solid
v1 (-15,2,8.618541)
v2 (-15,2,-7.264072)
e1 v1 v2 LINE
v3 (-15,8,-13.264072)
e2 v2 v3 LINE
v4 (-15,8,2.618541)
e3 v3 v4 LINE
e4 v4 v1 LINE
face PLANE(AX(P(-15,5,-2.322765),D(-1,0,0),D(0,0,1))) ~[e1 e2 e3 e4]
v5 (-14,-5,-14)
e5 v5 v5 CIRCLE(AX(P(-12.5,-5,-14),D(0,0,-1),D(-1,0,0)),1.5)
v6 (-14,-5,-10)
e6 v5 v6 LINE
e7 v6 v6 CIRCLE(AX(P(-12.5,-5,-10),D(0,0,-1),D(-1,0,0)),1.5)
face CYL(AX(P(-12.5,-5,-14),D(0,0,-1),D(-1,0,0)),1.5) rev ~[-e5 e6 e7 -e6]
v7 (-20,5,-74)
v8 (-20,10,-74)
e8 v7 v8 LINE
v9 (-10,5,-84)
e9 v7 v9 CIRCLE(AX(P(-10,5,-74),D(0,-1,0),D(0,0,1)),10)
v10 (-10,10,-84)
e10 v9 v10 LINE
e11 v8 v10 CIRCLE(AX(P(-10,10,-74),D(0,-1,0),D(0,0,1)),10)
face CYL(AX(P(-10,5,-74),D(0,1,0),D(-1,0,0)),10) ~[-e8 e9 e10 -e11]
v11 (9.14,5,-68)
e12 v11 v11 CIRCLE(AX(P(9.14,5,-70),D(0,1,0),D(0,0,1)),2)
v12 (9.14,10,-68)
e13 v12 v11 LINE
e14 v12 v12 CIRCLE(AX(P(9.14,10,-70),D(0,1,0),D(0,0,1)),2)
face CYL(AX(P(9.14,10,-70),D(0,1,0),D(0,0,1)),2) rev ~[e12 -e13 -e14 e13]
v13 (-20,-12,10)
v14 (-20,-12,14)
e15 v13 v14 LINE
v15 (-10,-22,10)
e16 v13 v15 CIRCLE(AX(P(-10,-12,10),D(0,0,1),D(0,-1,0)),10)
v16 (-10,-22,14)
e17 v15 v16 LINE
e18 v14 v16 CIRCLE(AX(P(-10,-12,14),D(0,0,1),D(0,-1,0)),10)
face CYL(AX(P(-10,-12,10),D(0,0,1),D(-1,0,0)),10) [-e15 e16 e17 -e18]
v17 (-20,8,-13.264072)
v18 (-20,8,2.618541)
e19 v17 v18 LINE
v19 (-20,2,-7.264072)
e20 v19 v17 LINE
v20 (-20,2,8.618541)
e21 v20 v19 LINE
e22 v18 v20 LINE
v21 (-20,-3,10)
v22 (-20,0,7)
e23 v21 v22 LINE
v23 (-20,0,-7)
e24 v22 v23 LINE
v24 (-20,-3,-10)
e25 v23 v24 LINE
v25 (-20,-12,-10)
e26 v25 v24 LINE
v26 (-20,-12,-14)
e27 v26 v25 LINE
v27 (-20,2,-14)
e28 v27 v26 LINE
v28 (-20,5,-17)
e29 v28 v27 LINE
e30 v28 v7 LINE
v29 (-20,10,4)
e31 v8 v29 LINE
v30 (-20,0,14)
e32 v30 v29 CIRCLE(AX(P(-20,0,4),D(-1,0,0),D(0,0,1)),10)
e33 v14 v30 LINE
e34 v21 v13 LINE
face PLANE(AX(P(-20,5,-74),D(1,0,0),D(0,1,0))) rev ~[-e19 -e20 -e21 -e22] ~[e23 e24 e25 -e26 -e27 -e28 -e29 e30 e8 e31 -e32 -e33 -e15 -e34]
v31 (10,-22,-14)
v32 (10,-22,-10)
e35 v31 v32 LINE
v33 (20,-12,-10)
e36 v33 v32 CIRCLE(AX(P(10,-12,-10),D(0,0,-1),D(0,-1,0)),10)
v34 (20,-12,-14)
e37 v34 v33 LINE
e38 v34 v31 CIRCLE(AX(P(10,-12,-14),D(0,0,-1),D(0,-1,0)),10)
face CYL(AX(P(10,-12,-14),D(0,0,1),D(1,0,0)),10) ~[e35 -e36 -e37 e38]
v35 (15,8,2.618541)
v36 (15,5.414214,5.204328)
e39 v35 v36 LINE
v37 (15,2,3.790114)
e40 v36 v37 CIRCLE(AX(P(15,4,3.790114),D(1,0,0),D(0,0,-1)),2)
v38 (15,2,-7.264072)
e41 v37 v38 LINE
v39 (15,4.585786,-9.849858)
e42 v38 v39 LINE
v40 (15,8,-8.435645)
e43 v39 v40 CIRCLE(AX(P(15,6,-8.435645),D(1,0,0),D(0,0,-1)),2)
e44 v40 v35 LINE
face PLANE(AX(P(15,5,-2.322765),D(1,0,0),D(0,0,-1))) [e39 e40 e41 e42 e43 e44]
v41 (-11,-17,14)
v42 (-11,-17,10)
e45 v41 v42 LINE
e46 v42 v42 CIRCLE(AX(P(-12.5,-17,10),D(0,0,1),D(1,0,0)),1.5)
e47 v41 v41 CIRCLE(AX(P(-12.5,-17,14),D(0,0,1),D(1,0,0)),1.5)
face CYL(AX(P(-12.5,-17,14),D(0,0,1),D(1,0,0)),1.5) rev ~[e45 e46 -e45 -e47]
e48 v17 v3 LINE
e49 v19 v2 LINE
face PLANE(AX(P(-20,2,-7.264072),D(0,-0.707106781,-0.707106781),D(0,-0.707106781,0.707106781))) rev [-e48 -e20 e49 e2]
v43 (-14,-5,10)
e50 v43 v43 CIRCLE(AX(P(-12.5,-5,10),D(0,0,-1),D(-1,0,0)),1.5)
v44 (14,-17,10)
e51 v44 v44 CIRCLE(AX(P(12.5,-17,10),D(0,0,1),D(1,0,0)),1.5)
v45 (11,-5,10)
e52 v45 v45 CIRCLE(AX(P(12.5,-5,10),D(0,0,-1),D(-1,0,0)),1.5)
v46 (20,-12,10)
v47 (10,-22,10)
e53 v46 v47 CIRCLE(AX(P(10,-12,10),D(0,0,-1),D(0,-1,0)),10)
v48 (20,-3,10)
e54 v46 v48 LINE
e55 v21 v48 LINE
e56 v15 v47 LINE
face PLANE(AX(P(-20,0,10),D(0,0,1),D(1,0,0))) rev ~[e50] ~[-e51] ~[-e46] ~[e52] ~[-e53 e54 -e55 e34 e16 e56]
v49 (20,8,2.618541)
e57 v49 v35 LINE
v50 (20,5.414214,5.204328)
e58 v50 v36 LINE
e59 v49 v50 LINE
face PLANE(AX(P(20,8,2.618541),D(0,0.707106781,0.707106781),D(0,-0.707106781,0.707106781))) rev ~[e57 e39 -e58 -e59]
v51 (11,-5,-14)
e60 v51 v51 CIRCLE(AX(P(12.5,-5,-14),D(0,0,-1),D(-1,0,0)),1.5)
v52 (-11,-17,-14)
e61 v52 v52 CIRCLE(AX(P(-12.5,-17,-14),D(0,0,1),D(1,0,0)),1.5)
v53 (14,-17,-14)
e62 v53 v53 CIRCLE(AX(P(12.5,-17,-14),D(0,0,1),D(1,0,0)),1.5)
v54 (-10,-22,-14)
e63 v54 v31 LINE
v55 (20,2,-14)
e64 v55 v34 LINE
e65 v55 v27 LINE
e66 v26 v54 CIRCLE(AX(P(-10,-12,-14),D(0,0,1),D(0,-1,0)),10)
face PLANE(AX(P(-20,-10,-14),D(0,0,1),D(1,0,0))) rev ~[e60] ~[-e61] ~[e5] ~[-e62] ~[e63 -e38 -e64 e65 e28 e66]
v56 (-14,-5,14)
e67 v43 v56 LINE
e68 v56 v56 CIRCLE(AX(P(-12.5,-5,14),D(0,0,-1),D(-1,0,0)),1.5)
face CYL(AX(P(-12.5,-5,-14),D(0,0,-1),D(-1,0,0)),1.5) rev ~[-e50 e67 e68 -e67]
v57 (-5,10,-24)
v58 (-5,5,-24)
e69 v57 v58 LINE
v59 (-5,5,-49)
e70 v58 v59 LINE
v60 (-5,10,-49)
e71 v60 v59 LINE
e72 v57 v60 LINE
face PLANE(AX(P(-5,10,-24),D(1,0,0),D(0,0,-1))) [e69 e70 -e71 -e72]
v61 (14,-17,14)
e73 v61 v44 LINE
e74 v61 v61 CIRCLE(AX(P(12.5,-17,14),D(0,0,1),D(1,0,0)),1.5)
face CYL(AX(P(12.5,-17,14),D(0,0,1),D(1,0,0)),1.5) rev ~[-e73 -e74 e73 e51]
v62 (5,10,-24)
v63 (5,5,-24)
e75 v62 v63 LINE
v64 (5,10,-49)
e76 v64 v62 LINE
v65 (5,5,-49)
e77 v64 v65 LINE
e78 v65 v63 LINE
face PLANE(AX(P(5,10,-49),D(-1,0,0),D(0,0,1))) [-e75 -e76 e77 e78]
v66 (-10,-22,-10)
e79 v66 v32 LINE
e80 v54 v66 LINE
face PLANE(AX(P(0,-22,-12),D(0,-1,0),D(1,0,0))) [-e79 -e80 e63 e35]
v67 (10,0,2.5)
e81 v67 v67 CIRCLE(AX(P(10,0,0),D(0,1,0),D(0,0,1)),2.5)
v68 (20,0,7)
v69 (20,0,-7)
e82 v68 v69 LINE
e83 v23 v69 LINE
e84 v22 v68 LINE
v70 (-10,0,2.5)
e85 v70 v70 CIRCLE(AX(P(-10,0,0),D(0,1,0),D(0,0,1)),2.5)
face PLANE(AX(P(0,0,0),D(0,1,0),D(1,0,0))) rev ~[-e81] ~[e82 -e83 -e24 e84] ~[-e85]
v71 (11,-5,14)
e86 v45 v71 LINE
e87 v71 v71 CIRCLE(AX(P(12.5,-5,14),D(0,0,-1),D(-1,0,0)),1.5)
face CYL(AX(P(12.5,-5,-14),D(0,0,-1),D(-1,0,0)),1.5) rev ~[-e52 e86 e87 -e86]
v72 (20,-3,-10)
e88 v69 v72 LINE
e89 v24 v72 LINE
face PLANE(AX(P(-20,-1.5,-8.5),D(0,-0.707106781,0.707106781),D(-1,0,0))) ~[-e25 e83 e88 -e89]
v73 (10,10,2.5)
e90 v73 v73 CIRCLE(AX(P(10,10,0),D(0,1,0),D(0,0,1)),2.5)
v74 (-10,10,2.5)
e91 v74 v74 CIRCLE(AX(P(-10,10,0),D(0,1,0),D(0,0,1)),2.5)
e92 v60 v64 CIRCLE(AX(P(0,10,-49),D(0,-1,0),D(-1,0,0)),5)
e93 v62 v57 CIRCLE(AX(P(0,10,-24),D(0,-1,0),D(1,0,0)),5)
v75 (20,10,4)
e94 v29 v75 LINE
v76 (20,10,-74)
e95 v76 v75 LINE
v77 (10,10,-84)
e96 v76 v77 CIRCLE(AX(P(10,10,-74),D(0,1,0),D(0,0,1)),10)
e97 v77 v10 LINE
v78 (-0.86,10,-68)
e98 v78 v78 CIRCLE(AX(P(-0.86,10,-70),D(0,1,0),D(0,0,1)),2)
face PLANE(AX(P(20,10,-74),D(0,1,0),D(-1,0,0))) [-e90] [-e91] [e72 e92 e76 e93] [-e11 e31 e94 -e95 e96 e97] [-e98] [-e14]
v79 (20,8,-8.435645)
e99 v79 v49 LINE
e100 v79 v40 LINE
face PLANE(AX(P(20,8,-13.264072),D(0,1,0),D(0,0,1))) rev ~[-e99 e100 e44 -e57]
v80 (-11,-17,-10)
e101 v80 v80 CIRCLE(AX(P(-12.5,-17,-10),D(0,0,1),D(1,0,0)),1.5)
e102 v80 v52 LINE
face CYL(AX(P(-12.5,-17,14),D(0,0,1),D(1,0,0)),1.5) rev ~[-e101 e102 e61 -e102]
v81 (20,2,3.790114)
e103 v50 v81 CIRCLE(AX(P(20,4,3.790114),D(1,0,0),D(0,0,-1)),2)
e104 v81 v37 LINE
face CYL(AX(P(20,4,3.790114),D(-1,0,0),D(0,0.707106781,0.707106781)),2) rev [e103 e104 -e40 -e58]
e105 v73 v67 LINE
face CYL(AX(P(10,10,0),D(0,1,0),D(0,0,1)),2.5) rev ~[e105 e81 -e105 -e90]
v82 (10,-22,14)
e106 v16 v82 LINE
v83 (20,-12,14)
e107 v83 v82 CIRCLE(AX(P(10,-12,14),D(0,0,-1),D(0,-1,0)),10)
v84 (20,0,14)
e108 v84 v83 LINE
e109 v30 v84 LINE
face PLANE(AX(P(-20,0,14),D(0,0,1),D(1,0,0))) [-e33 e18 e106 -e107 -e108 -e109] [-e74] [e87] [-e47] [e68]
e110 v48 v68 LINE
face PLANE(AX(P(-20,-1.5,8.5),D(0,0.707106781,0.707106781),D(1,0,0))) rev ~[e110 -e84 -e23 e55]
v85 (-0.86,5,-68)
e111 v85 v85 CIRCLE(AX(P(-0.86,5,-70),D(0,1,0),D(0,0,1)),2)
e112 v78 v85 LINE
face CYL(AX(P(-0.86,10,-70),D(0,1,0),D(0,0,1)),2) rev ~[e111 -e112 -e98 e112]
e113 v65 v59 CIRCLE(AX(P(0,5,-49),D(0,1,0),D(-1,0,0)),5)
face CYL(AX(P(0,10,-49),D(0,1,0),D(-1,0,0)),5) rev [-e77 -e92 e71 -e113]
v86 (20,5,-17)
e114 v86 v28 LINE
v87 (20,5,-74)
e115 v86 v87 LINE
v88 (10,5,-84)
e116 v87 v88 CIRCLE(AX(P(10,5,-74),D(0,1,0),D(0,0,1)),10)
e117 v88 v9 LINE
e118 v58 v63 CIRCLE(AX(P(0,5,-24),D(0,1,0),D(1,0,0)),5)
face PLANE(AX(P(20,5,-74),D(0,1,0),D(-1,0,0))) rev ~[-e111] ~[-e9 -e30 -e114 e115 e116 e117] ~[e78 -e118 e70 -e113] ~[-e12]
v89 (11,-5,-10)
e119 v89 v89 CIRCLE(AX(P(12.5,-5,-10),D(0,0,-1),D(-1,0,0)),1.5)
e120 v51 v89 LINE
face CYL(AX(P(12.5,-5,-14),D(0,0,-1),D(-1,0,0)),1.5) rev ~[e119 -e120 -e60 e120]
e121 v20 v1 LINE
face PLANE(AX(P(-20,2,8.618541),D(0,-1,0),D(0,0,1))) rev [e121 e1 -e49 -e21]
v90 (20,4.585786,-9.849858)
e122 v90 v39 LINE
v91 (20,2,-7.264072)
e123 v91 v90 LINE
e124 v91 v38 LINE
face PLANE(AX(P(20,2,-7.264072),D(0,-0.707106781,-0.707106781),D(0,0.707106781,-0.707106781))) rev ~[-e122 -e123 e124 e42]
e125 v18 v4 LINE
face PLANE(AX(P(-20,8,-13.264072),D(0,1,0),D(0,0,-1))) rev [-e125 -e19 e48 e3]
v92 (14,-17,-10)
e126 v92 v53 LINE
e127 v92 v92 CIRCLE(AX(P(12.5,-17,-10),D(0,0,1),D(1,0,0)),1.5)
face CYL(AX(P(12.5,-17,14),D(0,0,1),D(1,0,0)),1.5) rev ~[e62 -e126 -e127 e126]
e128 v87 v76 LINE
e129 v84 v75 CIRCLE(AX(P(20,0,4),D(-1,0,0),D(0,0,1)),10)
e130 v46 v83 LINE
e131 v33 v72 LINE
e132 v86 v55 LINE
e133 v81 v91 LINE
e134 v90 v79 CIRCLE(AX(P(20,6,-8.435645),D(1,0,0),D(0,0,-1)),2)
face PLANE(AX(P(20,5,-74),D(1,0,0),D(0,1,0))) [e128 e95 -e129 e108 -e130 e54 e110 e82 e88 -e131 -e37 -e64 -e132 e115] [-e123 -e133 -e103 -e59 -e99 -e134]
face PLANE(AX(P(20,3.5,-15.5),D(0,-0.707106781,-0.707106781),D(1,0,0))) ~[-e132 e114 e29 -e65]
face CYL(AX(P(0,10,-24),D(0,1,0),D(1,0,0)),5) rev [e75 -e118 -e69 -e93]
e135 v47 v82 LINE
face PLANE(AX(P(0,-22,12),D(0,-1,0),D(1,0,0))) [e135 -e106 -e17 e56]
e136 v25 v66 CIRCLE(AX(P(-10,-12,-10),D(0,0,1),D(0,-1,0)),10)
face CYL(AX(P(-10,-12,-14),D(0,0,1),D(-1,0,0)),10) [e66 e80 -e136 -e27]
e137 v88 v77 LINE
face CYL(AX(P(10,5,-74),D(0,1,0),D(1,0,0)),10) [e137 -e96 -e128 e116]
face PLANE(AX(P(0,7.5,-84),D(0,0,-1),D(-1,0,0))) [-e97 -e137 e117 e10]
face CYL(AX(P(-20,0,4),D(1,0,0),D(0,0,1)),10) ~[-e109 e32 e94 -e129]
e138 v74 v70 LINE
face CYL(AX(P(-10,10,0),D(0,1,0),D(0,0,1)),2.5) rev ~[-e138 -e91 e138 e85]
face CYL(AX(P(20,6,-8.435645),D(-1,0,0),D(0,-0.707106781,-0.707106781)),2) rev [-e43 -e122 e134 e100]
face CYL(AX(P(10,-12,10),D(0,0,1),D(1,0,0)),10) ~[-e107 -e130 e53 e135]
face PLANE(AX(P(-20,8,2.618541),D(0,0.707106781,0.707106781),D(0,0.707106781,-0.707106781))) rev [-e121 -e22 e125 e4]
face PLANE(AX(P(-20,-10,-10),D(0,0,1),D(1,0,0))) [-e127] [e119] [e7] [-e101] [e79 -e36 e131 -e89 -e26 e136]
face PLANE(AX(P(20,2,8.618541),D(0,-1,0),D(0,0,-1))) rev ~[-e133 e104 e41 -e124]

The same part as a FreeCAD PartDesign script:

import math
import FreeCAD as App
import Part
import Sketcher
from FreeCAD import Vector
Q = App.Units.Quantity


def edges_at(feature, points):
    """Names of the edges that pass closest to the given points."""
    edges = feature.Shape.Edges
    near = lambda p: min(range(len(edges)), key=lambda i: edges[i].distToShape(Part.Vertex(*p))[0])
    return sorted({f"Edge{near(p) + 1}" for p in points})

doc = App.newDocument("Part")
body = doc.addObject("PartDesign::Body", "Body")

sketch1 = body.newObject("Sketcher::SketchObject", "Sketch")
sketch1.AttachmentSupport = (doc.getObject("XZ_Plane"), [""])
sketch1.MapMode = "FlatFace"
sketch1.addGeometry(Part.LineSegment(Vector(-20, -14, 0), Vector(-20, 14, 0)), False)
sketch1.addGeometry(Part.LineSegment(Vector(-20, 14, 0), Vector(20, 14, 0)), False)
sketch1.addGeometry(Part.LineSegment(Vector(20, 14, 0), Vector(20, -14, 0)), False)
sketch1.addGeometry(Part.LineSegment(Vector(20, -14, 0), Vector(-20, -14, 0)), False)
sketch1.addConstraint(Sketcher.Constraint("Coincident", 0, 2, 1, 1))
sketch1.addConstraint(Sketcher.Constraint("Coincident", 1, 2, 2, 1))
sketch1.addConstraint(Sketcher.Constraint("Coincident", 2, 2, 3, 1))
sketch1.addConstraint(Sketcher.Constraint("Coincident", 3, 2, 0, 1))
sketch1.addConstraint(Sketcher.Constraint("Vertical", 0))
sketch1.addConstraint(Sketcher.Constraint("Horizontal", 1))
sketch1.addConstraint(Sketcher.Constraint("Vertical", 2))
sketch1.addConstraint(Sketcher.Constraint("Horizontal", 3))
sketch1.addConstraint(Sketcher.Constraint("Symmetric", 0, 2, 2, 2, -1, 1))
sketch1.addConstraint(Sketcher.Constraint("DistanceX", 1, 1, 1, 2, 40.0))
sketch1.addConstraint(Sketcher.Constraint("DistanceY", 0, 1, 0, 2, 28.0))
pad1 = body.newObject("PartDesign::Pad", "Pad")
pad1.Profile = sketch1
pad1.Length = 10
pad1.Reversed = True

sketch2 = body.newObject("Sketcher::SketchObject", "Sketch001")
sketch2.AttachmentSupport = (doc.getObject("XZ_Plane"), [""])
sketch2.MapMode = "FlatFace"
sketch2.addGeometry(Part.LineSegment(Vector(-20, 14, 0), Vector(-20, 10, 0)), False)
sketch2.addGeometry(Part.LineSegment(Vector(-20, 10, 0), Vector(20, 10, 0)), False)
sketch2.addGeometry(Part.LineSegment(Vector(20, 10, 0), Vector(20, 14, 0)), False)
sketch2.addGeometry(Part.LineSegment(Vector(20, 14, 0), Vector(-20, 14, 0)), False)
sketch2.addGeometry(Part.LineSegment(Vector(-20, -10, 0), Vector(-20, -14, 0)), False)
sketch2.addGeometry(Part.LineSegment(Vector(-20, -14, 0), Vector(20, -14, 0)), False)
sketch2.addGeometry(Part.LineSegment(Vector(20, -14, 0), Vector(20, -10, 0)), False)
sketch2.addGeometry(Part.LineSegment(Vector(20, -10, 0), Vector(-20, -10, 0)), False)
sketch2.addConstraint(Sketcher.Constraint("Coincident", 0, 2, 1, 1))
sketch2.addConstraint(Sketcher.Constraint("Coincident", 1, 2, 2, 1))
sketch2.addConstraint(Sketcher.Constraint("Coincident", 2, 2, 3, 1))
sketch2.addConstraint(Sketcher.Constraint("Coincident", 3, 2, 0, 1))
sketch2.addConstraint(Sketcher.Constraint("Coincident", 4, 2, 5, 1))
sketch2.addConstraint(Sketcher.Constraint("Coincident", 5, 2, 6, 1))
sketch2.addConstraint(Sketcher.Constraint("Coincident", 6, 2, 7, 1))
sketch2.addConstraint(Sketcher.Constraint("Coincident", 7, 2, 4, 1))
sketch2.addConstraint(Sketcher.Constraint("Vertical", 0))
sketch2.addConstraint(Sketcher.Constraint("Horizontal", 1))
sketch2.addConstraint(Sketcher.Constraint("Vertical", 2))
sketch2.addConstraint(Sketcher.Constraint("Horizontal", 3))
sketch2.addConstraint(Sketcher.Constraint("Vertical", 4))
sketch2.addConstraint(Sketcher.Constraint("Horizontal", 5))
sketch2.addConstraint(Sketcher.Constraint("Vertical", 6))
sketch2.addConstraint(Sketcher.Constraint("Horizontal", 7))
sketch2.addConstraint(Sketcher.Constraint("Symmetric", 2, 2, 4, 2, -1, 1))
sketch2.addConstraint(Sketcher.Constraint("Symmetric", 0, 2, 6, 2, -1, 1))
sketch2.addConstraint(Sketcher.Constraint("Vertical", 3, 2, 4, 2))
sketch2.addConstraint(Sketcher.Constraint("DistanceX", 1, 1, 1, 2, 40.0))
sketch2.addConstraint(Sketcher.Constraint("DistanceY", 0, 2, 0, 1, 4.0))
sketch2.addConstraint(Sketcher.Constraint("DistanceY", -1, 1, 0, 2, 10.0))
pad2 = body.newObject("PartDesign::Pad", "Pad001")
pad2.Profile = sketch2
pad2.Length = 10

sketch3 = body.newObject("Sketcher::SketchObject", "Sketch002")
sketch3.AttachmentSupport = (doc.getObject("XY_Plane"), [""])
sketch3.MapMode = "FlatFace"
sketch3.AttachmentOffset = App.Placement(Vector(0, 0, -14), App.Rotation())
sketch3.addGeometry(Part.LineSegment(Vector(20, 10, 0), Vector(20, 5, 0)), False)
sketch3.addGeometry(Part.LineSegment(Vector(20, 5, 0), Vector(-20, 5, 0)), False)
sketch3.addGeometry(Part.LineSegment(Vector(-20, 5, 0), Vector(-20, 10, 0)), False)
sketch3.addGeometry(Part.LineSegment(Vector(-20, 10, 0), Vector(20, 10, 0)), False)
sketch3.addConstraint(Sketcher.Constraint("Coincident", 0, 2, 1, 1))
sketch3.addConstraint(Sketcher.Constraint("Coincident", 1, 2, 2, 1))
sketch3.addConstraint(Sketcher.Constraint("Coincident", 2, 2, 3, 1))
sketch3.addConstraint(Sketcher.Constraint("Coincident", 3, 2, 0, 1))
sketch3.addConstraint(Sketcher.Constraint("Vertical", 0))
sketch3.addConstraint(Sketcher.Constraint("Horizontal", 1))
sketch3.addConstraint(Sketcher.Constraint("Vertical", 2))
sketch3.addConstraint(Sketcher.Constraint("Horizontal", 3))
sketch3.addConstraint(Sketcher.Constraint("DistanceX", 1, 2, 1, 1, 40.0))
sketch3.addConstraint(Sketcher.Constraint("DistanceY", 0, 2, 0, 1, 5.0))
sketch3.addConstraint(Sketcher.Constraint("DistanceX", -1, 1, 0, 2, 20.0))
sketch3.addConstraint(Sketcher.Constraint("DistanceY", -1, 1, 0, 2, 5.0))
pad3 = body.newObject("PartDesign::Pad", "Pad002")
pad3.Profile = sketch3
pad3.Length = 15
pad3.Reversed = True

sketch4 = body.newObject("Sketcher::SketchObject", "Sketch003")
sketch4.AttachmentSupport = (doc.getObject("XY_Plane"), [""])
sketch4.MapMode = "FlatFace"
sketch4.AttachmentOffset = App.Placement(Vector(0, 0, -29), App.Rotation())
sketch4.addGeometry(Part.LineSegment(Vector(20, 10, 0), Vector(20, 5, 0)), False)
sketch4.addGeometry(Part.LineSegment(Vector(20, 5, 0), Vector(-20, 5, 0)), False)
sketch4.addGeometry(Part.LineSegment(Vector(-20, 5, 0), Vector(-20, 10, 0)), False)
sketch4.addGeometry(Part.LineSegment(Vector(-20, 10, 0), Vector(20, 10, 0)), False)
sketch4.addConstraint(Sketcher.Constraint("Coincident", 0, 2, 1, 1))
sketch4.addConstraint(Sketcher.Constraint("Coincident", 1, 2, 2, 1))
sketch4.addConstraint(Sketcher.Constraint("Coincident", 2, 2, 3, 1))
sketch4.addConstraint(Sketcher.Constraint("Coincident", 3, 2, 0, 1))
sketch4.addConstraint(Sketcher.Constraint("Vertical", 0))
sketch4.addConstraint(Sketcher.Constraint("Horizontal", 1))
sketch4.addConstraint(Sketcher.Constraint("Vertical", 2))
sketch4.addConstraint(Sketcher.Constraint("Horizontal", 3))
sketch4.addConstraint(Sketcher.Constraint("DistanceX", 1, 2, 1, 1, 40.0))
sketch4.addConstraint(Sketcher.Constraint("DistanceY", 0, 2, 0, 1, 5.0))
sketch4.addConstraint(Sketcher.Constraint("DistanceX", -1, 1, 0, 2, 20.0))
sketch4.addConstraint(Sketcher.Constraint("DistanceY", -1, 1, 0, 2, 5.0))
pad4 = body.newObject("PartDesign::Pad", "Pad003")
pad4.Profile = sketch4
pad4.Length = 15
pad4.Reversed = True

sketch5 = body.newObject("Sketcher::SketchObject", "Sketch004")
sketch5.AttachmentSupport = (doc.getObject("XZ_Plane"), [""])
sketch5.MapMode = "FlatFace"
sketch5.AttachmentOffset = App.Placement(Vector(0, 0, -10), App.Rotation())
sketch5.addGeometry(Part.Circle(Vector(-10, 0, 0), Vector(0, 0, 1), 2.5), False)
sketch5.addGeometry(Part.Circle(Vector(10, 0, 0), Vector(0, 0, 1), 2.5), False)
sketch5.addConstraint(Sketcher.Constraint("Equal", 0, 1))
sketch5.addConstraint(Sketcher.Constraint("Symmetric", 0, 3, 1, 3, -1, 1))
sketch5.addConstraint(Sketcher.Constraint("PointOnObject", 0, 3, -1))
sketch5.addConstraint(Sketcher.Constraint("Diameter", 0, 5.0))
sketch5.addConstraint(Sketcher.Constraint("DistanceX", 0, 3, -1, 1, 10.0))
pocket1 = body.newObject("PartDesign::Pocket", "Pocket")
pocket1.Profile = sketch5
pocket1.Length = 15
pocket1.Reversed = True
doc.recompute()

chamfer = body.newObject("PartDesign::Chamfer", "Chamfer")
chamfer.Base = (pocket1, edges_at(pocket1, [(0, 0, 10), (0, 0, -10)]))
chamfer.Size = 3
doc.recompute()

fillet = body.newObject("PartDesign::Fillet", "Fillet")
fillet.Base = (chamfer, edges_at(chamfer, [(0, 10, 14)]))
fillet.Radius = 10
doc.recompute()

chamfer2 = body.newObject("PartDesign::Chamfer", "Chamfer001")
chamfer2.Base = (fillet, edges_at(fillet, [(0, 5, -14)]))
chamfer2.Size = 3

sketch6 = body.newObject("Sketcher::SketchObject", "Sketch005")
sketch6.AttachmentSupport = (doc.getObject("XY_Plane"), [""])
sketch6.MapMode = "FlatFace"
sketch6.AttachmentOffset = App.Placement(Vector(0, 0, -14), App.Rotation())
sketch6.addGeometry(Part.Circle(Vector(12.5, -5, 0), Vector(0, 0, 1), 1.5), False)
sketch6.addGeometry(Part.Circle(Vector(-12.5, -5, 0), Vector(0, 0, 1), 1.5), False)
sketch6.addConstraint(Sketcher.Constraint("Equal", 0, 1))
sketch6.addConstraint(Sketcher.Constraint("Symmetric", 0, 3, 1, 3, -2))
sketch6.addConstraint(Sketcher.Constraint("Diameter", 0, 3.0))
sketch6.addConstraint(Sketcher.Constraint("DistanceY", 0, 3, -1, 1, 5.0))
sketch6.addConstraint(Sketcher.Constraint("DistanceX", 1, 3, 0, 3, 25.0))
pocket2 = body.newObject("PartDesign::Pocket", "Pocket001")
pocket2.Profile = sketch6
pocket2.Type = "ThroughAll"
pocket2.Reversed = True

sketch7 = body.newObject("Sketcher::SketchObject", "Sketch006")
sketch7.AttachmentSupport = (doc.getObject("YZ_Plane"), [""])
sketch7.MapMode = "FlatFace"
sketch7.AttachmentOffset = App.Placement(Vector(0, 0, 20), App.Rotation())
sketch7.addGeometry(Part.LineSegment(Vector(8, 2.618541, 0), Vector(2, 8.618541, 0)), False)
sketch7.addGeometry(Part.LineSegment(Vector(2, 8.618541, 0), Vector(2, -7.264072, 0)), False)
sketch7.addGeometry(Part.LineSegment(Vector(2, -7.264072, 0), Vector(8, -13.264072, 0)), False)
sketch7.addGeometry(Part.LineSegment(Vector(8, -13.264072, 0), Vector(8, 2.618541, 0)), False)
sketch7.addConstraint(Sketcher.Constraint("Coincident", 0, 2, 1, 1))
sketch7.addConstraint(Sketcher.Constraint("Coincident", 1, 2, 2, 1))
sketch7.addConstraint(Sketcher.Constraint("Coincident", 2, 2, 3, 1))
sketch7.addConstraint(Sketcher.Constraint("Coincident", 3, 2, 0, 1))
sketch7.addConstraint(Sketcher.Constraint("Vertical", 1))
sketch7.addConstraint(Sketcher.Constraint("Vertical", 3))
sketch7.addConstraint(Sketcher.Constraint("Parallel", 0, 2))
sketch7.addConstraint(Sketcher.Constraint("Angle", 0, Q("135 deg")))
sketch7.addConstraint(Sketcher.Constraint("DistanceX", -1, 1, 0, 2, 2.0))
sketch7.addConstraint(Sketcher.Constraint("DistanceX", -1, 1, 2, 2, 8.0))
sketch7.addConstraint(Sketcher.Constraint("DistanceY", 1, 2, 1, 1, 15.882613))
sketch7.addConstraint(Sketcher.Constraint("DistanceY", -1, 1, 0, 2, 8.618541))
pocket3 = body.newObject("PartDesign::Pocket", "Pocket002")
pocket3.Profile = sketch7
pocket3.Length = 5
doc.recompute()

fillet2 = body.newObject("PartDesign::Fillet", "Fillet001")
fillet2.Base = (pocket3, edges_at(pocket3, [(17.5, 8, -13.264), (17.5, 2, 8.619)]))
fillet2.Radius = 2
doc.recompute()

mirrored = body.newObject("PartDesign::Mirrored", "Mirrored")
mirrored.Originals = [pocket3]
mirrored.MirrorPlane = (doc.getObject("YZ_Plane"), [""])
body.Tip = mirrored

sketch8 = body.newObject("Sketcher::SketchObject", "Sketch007")
sketch8.AttachmentSupport = (doc.getObject("XZ_Plane"), [""])
sketch8.MapMode = "FlatFace"
sketch8.AttachmentOffset = App.Placement(Vector(0, 0, 10), App.Rotation())
sketch8.addGeometry(Part.LineSegment(Vector(-20, -7, 0), Vector(-20, -14, 0)), False)
sketch8.addGeometry(Part.LineSegment(Vector(-20, -14, 0), Vector(20, -14, 0)), False)
sketch8.addGeometry(Part.LineSegment(Vector(20, -14, 0), Vector(20, -7, 0)), False)
sketch8.addGeometry(Part.LineSegment(Vector(20, -7, 0), Vector(-20, -7, 0)), False)
sketch8.addGeometry(Part.LineSegment(Vector(-20, 14, 0), Vector(-20, 7, 0)), False)
sketch8.addGeometry(Part.LineSegment(Vector(-20, 7, 0), Vector(20, 7, 0)), False)
sketch8.addGeometry(Part.LineSegment(Vector(20, 7, 0), Vector(20, 14, 0)), False)
sketch8.addGeometry(Part.LineSegment(Vector(20, 14, 0), Vector(-20, 14, 0)), False)
sketch8.addConstraint(Sketcher.Constraint("Coincident", 0, 2, 1, 1))
sketch8.addConstraint(Sketcher.Constraint("Coincident", 1, 2, 2, 1))
sketch8.addConstraint(Sketcher.Constraint("Coincident", 2, 2, 3, 1))
sketch8.addConstraint(Sketcher.Constraint("Coincident", 3, 2, 0, 1))
sketch8.addConstraint(Sketcher.Constraint("Coincident", 4, 2, 5, 1))
sketch8.addConstraint(Sketcher.Constraint("Coincident", 5, 2, 6, 1))
sketch8.addConstraint(Sketcher.Constraint("Coincident", 6, 2, 7, 1))
sketch8.addConstraint(Sketcher.Constraint("Coincident", 7, 2, 4, 1))
sketch8.addConstraint(Sketcher.Constraint("Vertical", 0))
sketch8.addConstraint(Sketcher.Constraint("Horizontal", 1))
sketch8.addConstraint(Sketcher.Constraint("Vertical", 2))
sketch8.addConstraint(Sketcher.Constraint("Horizontal", 3))
sketch8.addConstraint(Sketcher.Constraint("Vertical", 4))
sketch8.addConstraint(Sketcher.Constraint("Horizontal", 5))
sketch8.addConstraint(Sketcher.Constraint("Vertical", 6))
sketch8.addConstraint(Sketcher.Constraint("Horizontal", 7))
sketch8.addConstraint(Sketcher.Constraint("Symmetric", 2, 2, 4, 2, -1, 1))
sketch8.addConstraint(Sketcher.Constraint("Symmetric", 0, 2, 6, 2, -1, 1))
sketch8.addConstraint(Sketcher.Constraint("Vertical", 3, 2, 4, 2))
sketch8.addConstraint(Sketcher.Constraint("DistanceX", 1, 1, 1, 2, 40.0))
sketch8.addConstraint(Sketcher.Constraint("DistanceY", 0, 2, 0, 1, 7.0))
sketch8.addConstraint(Sketcher.Constraint("DistanceY", 0, 2, -1, 1, 14.0))
pad5 = body.newObject("PartDesign::Pad", "Pad004")
pad5.Profile = sketch8
pad5.Length = 3
pad5.Reversed = True
doc.recompute()

chamfer3 = body.newObject("PartDesign::Chamfer", "Chamfer002")
chamfer3.Base = (pad5, edges_at(pad5, [(0, -7, -7), (0, -7, 7)]))
chamfer3.Size = 1

sketch9 = body.newObject("Sketcher::SketchObject", "Sketch008")
sketch9.AttachmentSupport = (doc.getObject("XY_Plane"), [""])
sketch9.MapMode = "FlatFace"
sketch9.AttachmentOffset = App.Placement(Vector(0, 0, -44), App.Rotation())
sketch9.addGeometry(Part.LineSegment(Vector(20, 10, 0), Vector(20, 5, 0)), False)
sketch9.addGeometry(Part.LineSegment(Vector(20, 5, 0), Vector(-20, 5, 0)), False)
sketch9.addGeometry(Part.LineSegment(Vector(-20, 5, 0), Vector(-20, 10, 0)), False)
sketch9.addGeometry(Part.LineSegment(Vector(-20, 10, 0), Vector(20, 10, 0)), False)
sketch9.addConstraint(Sketcher.Constraint("Coincident", 0, 2, 1, 1))
sketch9.addConstraint(Sketcher.Constraint("Coincident", 1, 2, 2, 1))
sketch9.addConstraint(Sketcher.Constraint("Coincident", 2, 2, 3, 1))
sketch9.addConstraint(Sketcher.Constraint("Coincident", 3, 2, 0, 1))
sketch9.addConstraint(Sketcher.Constraint("Vertical", 0))
sketch9.addConstraint(Sketcher.Constraint("Horizontal", 1))
sketch9.addConstraint(Sketcher.Constraint("Vertical", 2))
sketch9.addConstraint(Sketcher.Constraint("Horizontal", 3))
sketch9.addConstraint(Sketcher.Constraint("DistanceX", 1, 2, 1, 1, 40.0))
sketch9.addConstraint(Sketcher.Constraint("DistanceY", 0, 2, 0, 1, 5.0))
sketch9.addConstraint(Sketcher.Constraint("DistanceX", -1, 1, 0, 2, 20.0))
sketch9.addConstraint(Sketcher.Constraint("DistanceY", -1, 1, 0, 2, 5.0))
pad6 = body.newObject("PartDesign::Pad", "Pad005")
pad6.Profile = sketch9
pad6.Length = 30
pad6.Reversed = True

sketch10 = body.newObject("Sketcher::SketchObject", "Sketch009")
sketch10.AttachmentSupport = (doc.getObject("XZ_Plane"), [""])
sketch10.MapMode = "FlatFace"
sketch10.AttachmentOffset = App.Placement(Vector(0, 0, -10), App.Rotation())
sketch10.addGeometry(Part.Circle(Vector(9.14, -70, 0), Vector(0, 0, 1), 2), False)
sketch10.addGeometry(Part.Circle(Vector(-0.86, -70, 0), Vector(0, 0, 1), 2), False)
sketch10.addConstraint(Sketcher.Constraint("Equal", 0, 1))
sketch10.addConstraint(Sketcher.Constraint("Horizontal", 0, 3, 1, 3))
sketch10.addConstraint(Sketcher.Constraint("Diameter", 0, 4.0))
sketch10.addConstraint(Sketcher.Constraint("DistanceY", 0, 3, -1, 1, 70.0))
sketch10.addConstraint(Sketcher.Constraint("DistanceX", 1, 3, 0, 3, 10.0))
sketch10.addConstraint(Sketcher.Constraint("DistanceX", -1, 1, 0, 3, 9.14))
pocket4 = body.newObject("PartDesign::Pocket", "Pocket003")
pocket4.Profile = sketch10
pocket4.Length = 30
pocket4.Reversed = True

sketch11 = body.newObject("Sketcher::SketchObject", "Sketch010")
sketch11.AttachmentSupport = (doc.getObject("YZ_Plane"), [""])
sketch11.MapMode = "FlatFace"
sketch11.AttachmentOffset = App.Placement(Vector(0, 0, 20), App.Rotation())
sketch11.addGeometry(Part.LineSegment(Vector(-7, 10, 0), Vector(-13.386073, 10, 0)), False)
sketch11.addGeometry(Part.LineSegment(Vector(-13.386073, 10, 0), Vector(-13.386073, -10, 0)), False)
sketch11.addGeometry(Part.LineSegment(Vector(-13.386073, -10, 0), Vector(-7, -10, 0)), False)
sketch11.addGeometry(Part.LineSegment(Vector(-7, -10, 0), Vector(-7, 10, 0)), False)
sketch11.addConstraint(Sketcher.Constraint("Coincident", 0, 2, 1, 1))
sketch11.addConstraint(Sketcher.Constraint("Coincident", 1, 2, 2, 1))
sketch11.addConstraint(Sketcher.Constraint("Coincident", 2, 2, 3, 1))
sketch11.addConstraint(Sketcher.Constraint("Coincident", 3, 2, 0, 1))
sketch11.addConstraint(Sketcher.Constraint("Horizontal", 0))
sketch11.addConstraint(Sketcher.Constraint("Vertical", 1))
sketch11.addConstraint(Sketcher.Constraint("Horizontal", 2))
sketch11.addConstraint(Sketcher.Constraint("Vertical", 3))
sketch11.addConstraint(Sketcher.Constraint("DistanceY", 1, 2, 1, 1, 20.0))
sketch11.addConstraint(Sketcher.Constraint("DistanceY", -1, 1, 0, 2, 10.0))
sketch11.addConstraint(Sketcher.Constraint("DistanceX", 2, 2, -1, 1, 7.0))
sketch11.addConstraint(Sketcher.Constraint("DistanceX", 0, 2, 0, 1, 6.386073))
pocket5 = body.newObject("PartDesign::Pocket", "Pocket004")
pocket5.Profile = sketch11
pocket5.Type = "ThroughAll"

sketch12 = body.newObject("Sketcher::SketchObject", "Sketch011")
sketch12.AttachmentSupport = (doc.getObject("XZ_Plane"), [""])
sketch12.MapMode = "FlatFace"
sketch12.AttachmentOffset = App.Placement(Vector(0, 0, 10), App.Rotation())
sketch12.addGeometry(Part.LineSegment(Vector(-20, -10, 0), Vector(-20, -14, 0)), False)
sketch12.addGeometry(Part.LineSegment(Vector(-20, -14, 0), Vector(20, -14, 0)), False)
sketch12.addGeometry(Part.LineSegment(Vector(20, -14, 0), Vector(20, -10, 0)), False)
sketch12.addGeometry(Part.LineSegment(Vector(20, -10, 0), Vector(-20, -10, 0)), False)
sketch12.addGeometry(Part.LineSegment(Vector(-20, 14, 0), Vector(-20, 10, 0)), False)
sketch12.addGeometry(Part.LineSegment(Vector(-20, 10, 0), Vector(20, 10, 0)), False)
sketch12.addGeometry(Part.LineSegment(Vector(20, 10, 0), Vector(20, 14, 0)), False)
sketch12.addGeometry(Part.LineSegment(Vector(20, 14, 0), Vector(-20, 14, 0)), False)
sketch12.addConstraint(Sketcher.Constraint("Coincident", 0, 2, 1, 1))
sketch12.addConstraint(Sketcher.Constraint("Coincident", 1, 2, 2, 1))
sketch12.addConstraint(Sketcher.Constraint("Coincident", 2, 2, 3, 1))
sketch12.addConstraint(Sketcher.Constraint("Coincident", 3, 2, 0, 1))
sketch12.addConstraint(Sketcher.Constraint("Coincident", 4, 2, 5, 1))
sketch12.addConstraint(Sketcher.Constraint("Coincident", 5, 2, 6, 1))
sketch12.addConstraint(Sketcher.Constraint("Coincident", 6, 2, 7, 1))
sketch12.addConstraint(Sketcher.Constraint("Coincident", 7, 2, 4, 1))
sketch12.addConstraint(Sketcher.Constraint("Vertical", 0))
sketch12.addConstraint(Sketcher.Constraint("Horizontal", 1))
sketch12.addConstraint(Sketcher.Constraint("Vertical", 2))
sketch12.addConstraint(Sketcher.Constraint("Horizontal", 3))
sketch12.addConstraint(Sketcher.Constraint("Vertical", 4))
sketch12.addConstraint(Sketcher.Constraint("Horizontal", 5))
sketch12.addConstraint(Sketcher.Constraint("Vertical", 6))
sketch12.addConstraint(Sketcher.Constraint("Horizontal", 7))
sketch12.addConstraint(Sketcher.Constraint("Symmetric", 2, 2, 4, 2, -1, 1))
sketch12.addConstraint(Sketcher.Constraint("Symmetric", 0, 2, 6, 2, -1, 1))
sketch12.addConstraint(Sketcher.Constraint("Vertical", 3, 2, 4, 2))
sketch12.addConstraint(Sketcher.Constraint("DistanceX", 1, 1, 1, 2, 40.0))
sketch12.addConstraint(Sketcher.Constraint("DistanceY", 0, 2, 0, 1, 4.0))
sketch12.addConstraint(Sketcher.Constraint("DistanceY", 0, 2, -1, 1, 14.0))
pad7 = body.newObject("PartDesign::Pad", "Pad006")
pad7.Profile = sketch12
pad7.Length = 12

sketch13 = body.newObject("Sketcher::SketchObject", "Sketch012")
sketch13.AttachmentSupport = (doc.getObject("XY_Plane"), [""])
sketch13.MapMode = "FlatFace"
sketch13.AttachmentOffset = App.Placement(Vector(0, 0, 14), App.Rotation())
sketch13.addGeometry(Part.Circle(Vector(12.5, -5, 0), Vector(0, 0, 1), 1.5), False)
sketch13.addGeometry(Part.Circle(Vector(-12.5, -5, 0), Vector(0, 0, 1), 1.5), False)
sketch13.addGeometry(Part.Circle(Vector(-12.5, -17, 0), Vector(0, 0, 1), 1.5), False)
sketch13.addGeometry(Part.Circle(Vector(12.5, -17, 0), Vector(0, 0, 1), 1.5), False)
sketch13.addConstraint(Sketcher.Constraint("Equal", 0, 1))
sketch13.addConstraint(Sketcher.Constraint("Equal", 1, 2))
sketch13.addConstraint(Sketcher.Constraint("Equal", 2, 3))
sketch13.addConstraint(Sketcher.Constraint("Symmetric", 0, 3, 1, 3, -2))
sketch13.addConstraint(Sketcher.Constraint("Symmetric", 2, 3, 3, 3, -2))
sketch13.addConstraint(Sketcher.Constraint("Vertical", 1, 3, 2, 3))
sketch13.addConstraint(Sketcher.Constraint("Diameter", 0, 3.0))
sketch13.addConstraint(Sketcher.Constraint("DistanceY", 0, 3, -1, 1, 5.0))
sketch13.addConstraint(Sketcher.Constraint("DistanceY", 2, 3, -1, 1, 17.0))
sketch13.addConstraint(Sketcher.Constraint("DistanceX", 1, 3, 0, 3, 25.0))
pocket6 = body.newObject("PartDesign::Pocket", "Pocket005")
pocket6.Profile = sketch13
pocket6.Type = "ThroughAll"

sketch14 = body.newObject("Sketcher::SketchObject", "Sketch013")
sketch14.AttachmentSupport = (doc.getObject("XZ_Plane"), [""])
sketch14.MapMode = "FlatFace"
sketch14.AttachmentOffset = App.Placement(Vector(0, 0, -10), App.Rotation())
sketch14.addGeometry(Part.LineSegment(Vector(5, -24, 0), Vector(5, -49, 0)), False)
sketch14.addGeometry(Part.ArcOfCircle(Part.Circle(Vector(0, -49, 0), Vector(0, 0, 1), 5), math.radians(180), math.radians(360)), False)
sketch14.addGeometry(Part.LineSegment(Vector(-5, -49, 0), Vector(-5, -24, 0)), False)
sketch14.addGeometry(Part.ArcOfCircle(Part.Circle(Vector(0, -24, 0), Vector(0, 0, 1), 5), math.radians(0), math.radians(180)), False)
sketch14.addConstraint(Sketcher.Constraint("Tangent", 0, 2, 1, 2))
sketch14.addConstraint(Sketcher.Constraint("Tangent", 1, 1, 2, 1))
sketch14.addConstraint(Sketcher.Constraint("Tangent", 2, 2, 3, 2))
sketch14.addConstraint(Sketcher.Constraint("Tangent", 3, 1, 0, 1))
sketch14.addConstraint(Sketcher.Constraint("Vertical", 0))
sketch14.addConstraint(Sketcher.Constraint("Vertical", 2))
sketch14.addConstraint(Sketcher.Constraint("PointOnObject", 1, 3, -2))
sketch14.addConstraint(Sketcher.Constraint("Radius", 1, 5.0))
sketch14.addConstraint(Sketcher.Constraint("DistanceY", 0, 2, 0, 1, 25.0))
sketch14.addConstraint(Sketcher.Constraint("DistanceY", 1, 3, -1, 1, 49.0))
pocket7 = body.newObject("PartDesign::Pocket", "Pocket006")
pocket7.Profile = sketch14
pocket7.Type = "ThroughAll"
pocket7.Reversed = True

sketch15 = body.newObject("Sketcher::SketchObject", "Sketch014")
sketch15.AttachmentSupport = (doc.getObject("XY_Plane"), [""])
sketch15.MapMode = "FlatFace"
sketch15.AttachmentOffset = App.Placement(Vector(0, 0, -74), App.Rotation())
sketch15.addGeometry(Part.LineSegment(Vector(20, 10, 0), Vector(20, 5, 0)), False)
sketch15.addGeometry(Part.LineSegment(Vector(20, 5, 0), Vector(-20, 5, 0)), False)
sketch15.addGeometry(Part.LineSegment(Vector(-20, 5, 0), Vector(-20, 10, 0)), False)
sketch15.addGeometry(Part.LineSegment(Vector(-20, 10, 0), Vector(20, 10, 0)), False)
sketch15.addConstraint(Sketcher.Constraint("Coincident", 0, 2, 1, 1))
sketch15.addConstraint(Sketcher.Constraint("Coincident", 1, 2, 2, 1))
sketch15.addConstraint(Sketcher.Constraint("Coincident", 2, 2, 3, 1))
sketch15.addConstraint(Sketcher.Constraint("Coincident", 3, 2, 0, 1))
sketch15.addConstraint(Sketcher.Constraint("Vertical", 0))
sketch15.addConstraint(Sketcher.Constraint("Horizontal", 1))
sketch15.addConstraint(Sketcher.Constraint("Vertical", 2))
sketch15.addConstraint(Sketcher.Constraint("Horizontal", 3))
sketch15.addConstraint(Sketcher.Constraint("DistanceX", 1, 2, 1, 1, 40.0))
sketch15.addConstraint(Sketcher.Constraint("DistanceY", 0, 2, 0, 1, 5.0))
sketch15.addConstraint(Sketcher.Constraint("DistanceX", -1, 1, 0, 2, 20.0))
sketch15.addConstraint(Sketcher.Constraint("DistanceY", -1, 1, 0, 2, 5.0))
pad8 = body.newObject("PartDesign::Pad", "Pad007")
pad8.Profile = sketch15
pad8.Length = 10
pad8.Reversed = True
doc.recompute()

fillet3 = body.newObject("PartDesign::Fillet", "Fillet002")
fillet3.Base = (pad8, edges_at(pad8, [
    (-20, -22, -12),
    (20, -22, -12),
    (-20, -22, 12),
    (20, -22, 12),
    (20, 7.5, -84),
    (-20, 7.5, -84),
]))
fillet3.Radius = 10

doc.recompute()
